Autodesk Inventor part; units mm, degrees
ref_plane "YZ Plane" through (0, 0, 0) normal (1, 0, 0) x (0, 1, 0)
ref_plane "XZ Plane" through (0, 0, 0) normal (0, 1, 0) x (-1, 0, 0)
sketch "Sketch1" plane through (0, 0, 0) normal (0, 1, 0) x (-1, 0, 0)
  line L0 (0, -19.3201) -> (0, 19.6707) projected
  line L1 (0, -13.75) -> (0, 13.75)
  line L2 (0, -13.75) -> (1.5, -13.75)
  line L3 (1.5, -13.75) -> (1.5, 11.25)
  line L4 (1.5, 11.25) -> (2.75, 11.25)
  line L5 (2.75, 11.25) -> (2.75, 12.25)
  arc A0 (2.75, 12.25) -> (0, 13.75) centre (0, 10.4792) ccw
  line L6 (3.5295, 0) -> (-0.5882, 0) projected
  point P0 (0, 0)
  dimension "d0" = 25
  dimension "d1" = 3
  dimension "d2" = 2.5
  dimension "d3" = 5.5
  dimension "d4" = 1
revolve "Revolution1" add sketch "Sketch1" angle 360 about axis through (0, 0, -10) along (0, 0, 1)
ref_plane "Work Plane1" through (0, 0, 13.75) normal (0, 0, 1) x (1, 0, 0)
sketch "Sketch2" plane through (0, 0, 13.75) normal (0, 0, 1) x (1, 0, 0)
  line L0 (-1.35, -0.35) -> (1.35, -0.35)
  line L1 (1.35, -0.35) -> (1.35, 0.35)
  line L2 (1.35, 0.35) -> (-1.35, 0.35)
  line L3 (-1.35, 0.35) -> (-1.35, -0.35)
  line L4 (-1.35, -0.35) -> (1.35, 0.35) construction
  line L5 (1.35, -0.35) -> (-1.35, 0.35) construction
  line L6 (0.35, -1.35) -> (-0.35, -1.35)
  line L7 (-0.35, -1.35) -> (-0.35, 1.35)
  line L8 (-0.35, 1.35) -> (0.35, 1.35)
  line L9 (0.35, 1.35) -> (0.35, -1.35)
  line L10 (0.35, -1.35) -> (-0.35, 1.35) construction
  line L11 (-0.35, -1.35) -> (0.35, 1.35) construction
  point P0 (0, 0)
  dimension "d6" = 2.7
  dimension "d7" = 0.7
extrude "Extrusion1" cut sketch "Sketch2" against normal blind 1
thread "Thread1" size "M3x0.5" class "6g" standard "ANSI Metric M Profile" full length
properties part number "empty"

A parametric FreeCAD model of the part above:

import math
import FreeCAD as App
import Part
import Sketcher

doc = App.newDocument("Part")
body = doc.addObject("PartDesign::Body", "Body")

# Sketch on XZ plane
sketch1 = body.newObject("Sketcher::SketchObject", "Sketch")
sketch1.AttachmentSupport = (doc.getObject("XZ_Plane"), [""])
sketch1.MapMode = "FlatFace"
sketch1.addGeometry([
    Part.LineSegment(App.Vector(0, -13.8, 0), App.Vector(-1.5, -13.8, 0)),  # 0
    Part.LineSegment(App.Vector(-1.5, -13.8, 0), App.Vector(-1.5, 11.2, 0)),  # 1
    Part.LineSegment(App.Vector(-1.5, 11.2, 0), App.Vector(-2.8, 11.2, 0)),  # 2
    Part.LineSegment(App.Vector(-2.8, 11.2, 0), App.Vector(-2.8, 12.2, 0)),  # 3
    Part.ArcOfCircle(Part.Circle(App.Vector(0, 10.5, 0), App.Vector(0, 0, 1), 3.3), math.radians(90), math.radians(147)),  # 4
    Part.LineSegment(App.Vector(0, 13.8, 0), App.Vector(0, -13.8, 0)),  # 5
], False)
sketch1.addConstraint([
    Sketcher.Constraint("Coincident", 0, 2, 1, 1),
    Sketcher.Constraint("Coincident", 1, 2, 2, 1),
    Sketcher.Constraint("Coincident", 2, 2, 3, 1),
    Sketcher.Constraint("Coincident", 3, 2, 4, 2),
    Sketcher.Constraint("Coincident", 4, 1, 5, 1),
    Sketcher.Constraint("Coincident", 5, 2, 0, 1),
    Sketcher.Constraint("Horizontal", 0),
    Sketcher.Constraint("Vertical", 1),
    Sketcher.Constraint("Horizontal", 2),
    Sketcher.Constraint("Vertical", 3),
    Sketcher.Constraint("Vertical", 5),
    Sketcher.Constraint("Symmetric", 4, 1, 5, 2, -1, 1),
    Sketcher.Constraint("PointOnObject", 4, 3, -2),
    Sketcher.Constraint("DistanceY", 1, 1, 1, 2, 25.0),
    Sketcher.Constraint("DistanceY", 3, 1, 3, 2, 1.0),
    Sketcher.Constraint("DistanceY", 1, 2, 4, 1, 2.5),
    Sketcher.Constraint("DistanceX", 0, 2, 0, 1, 1.5),
    Sketcher.Constraint("DistanceX", 2, 2, 2, 1, 1.25),
])
revolution = body.newObject("PartDesign::Revolution", "Revolution")
revolution.Profile = sketch1
revolution.ReferenceAxis = (sketch1, ["V_Axis"])
revolution.Angle = 360

# Sketch on XY plane
sketch2 = body.newObject("Sketcher::SketchObject", "Sketch001")
sketch2.AttachmentSupport = (doc.getObject("XY_Plane"), [""])
sketch2.MapMode = "FlatFace"
sketch2.AttachmentOffset = App.Placement(App.Vector(0, 0, 13.75), App.Rotation())
sketch2.addGeometry([
    Part.LineSegment(App.Vector(-1.4, 0.3, 0), App.Vector(-1.4, -0.3, 0)),  # 0
    Part.LineSegment(App.Vector(-1.4, -0.3, 0), App.Vector(-0.3, -0.3, 0)),  # 1
    Part.LineSegment(App.Vector(-0.3, -0.3, 0), App.Vector(-0.3, -1.4, 0)),  # 2
    Part.LineSegment(App.Vector(-0.3, -1.4, 0), App.Vector(0.3, -1.4, 0)),  # 3
    Part.LineSegment(App.Vector(0.3, -1.4, 0), App.Vector(0.3, -0.3, 0)),  # 4
    Part.LineSegment(App.Vector(0.3, -0.3, 0), App.Vector(1.4, -0.3, 0)),  # 5
    Part.LineSegment(App.Vector(1.4, -0.3, 0), App.Vector(1.4, 0.3, 0)),  # 6
    Part.LineSegment(App.Vector(1.4, 0.3, 0), App.Vector(0.3, 0.3, 0)),  # 7
    Part.LineSegment(App.Vector(0.3, 0.3, 0), App.Vector(0.3, 1.4, 0)),  # 8
    Part.LineSegment(App.Vector(0.3, 1.4, 0), App.Vector(-0.3, 1.4, 0)),  # 9
    Part.LineSegment(App.Vector(-0.3, 1.4, 0), App.Vector(-0.3, 0.3, 0)),  # 10
    Part.LineSegment(App.Vector(-0.3, 0.3, 0), App.Vector(-1.4, 0.3, 0)),  # 11
], False)
sketch2.addConstraint([
    Sketcher.Constraint("Coincident", 0, 2, 1, 1),
    Sketcher.Constraint("Coincident", 1, 2, 2, 1),
    Sketcher.Constraint("Coincident", 2, 2, 3, 1),
    Sketcher.Constraint("Coincident", 3, 2, 4, 1),
    Sketcher.Constraint("Coincident", 4, 2, 5, 1),
    Sketcher.Constraint("Coincident", 5, 2, 6, 1),
    Sketcher.Constraint("Coincident", 6, 2, 7, 1),
    Sketcher.Constraint("Coincident", 7, 2, 8, 1),
    Sketcher.Constraint("Coincident", 8, 2, 9, 1),
    Sketcher.Constraint("Coincident", 9, 2, 10, 1),
    Sketcher.Constraint("Coincident", 10, 2, 11, 1),
    Sketcher.Constraint("Coincident", 11, 2, 0, 1),
    Sketcher.Constraint("Vertical", 0),
    Sketcher.Constraint("Horizontal", 1),
    Sketcher.Constraint("Vertical", 2),
    Sketcher.Constraint("Horizontal", 3),
    Sketcher.Constraint("Vertical", 4),
    Sketcher.Constraint("Horizontal", 5),
    Sketcher.Constraint("Vertical", 6),
    Sketcher.Constraint("Horizontal", 7),
    Sketcher.Constraint("Vertical", 8),
    Sketcher.Constraint("Horizontal", 9),
    Sketcher.Constraint("Vertical", 10),
    Sketcher.Constraint("Horizontal", 11),
    Sketcher.Constraint("Symmetric", 0, 2, 6, 2, -1, 1),
    Sketcher.Constraint("Symmetric", 2, 2, 8, 2, -1, 1),
    Sketcher.Constraint("Symmetric", 4, 2, 10, 2, -1, 1),
    Sketcher.Constraint("Symmetric", 1, 2, 4, 2, -2),
    Sketcher.Constraint("Equal", 9, 0),
    Sketcher.Constraint("Equal", 11, 2),
    Sketcher.Constraint("DistanceX", 3, 1, 3, 2, 0.7),
    Sketcher.Constraint("DistanceX", 0, 2, 5, 2, 2.7),
])
pocket1 = body.newObject("PartDesign::Pocket", "Pocket")
pocket1.Profile = sketch2
pocket1.Length = 1

doc.recompute()
